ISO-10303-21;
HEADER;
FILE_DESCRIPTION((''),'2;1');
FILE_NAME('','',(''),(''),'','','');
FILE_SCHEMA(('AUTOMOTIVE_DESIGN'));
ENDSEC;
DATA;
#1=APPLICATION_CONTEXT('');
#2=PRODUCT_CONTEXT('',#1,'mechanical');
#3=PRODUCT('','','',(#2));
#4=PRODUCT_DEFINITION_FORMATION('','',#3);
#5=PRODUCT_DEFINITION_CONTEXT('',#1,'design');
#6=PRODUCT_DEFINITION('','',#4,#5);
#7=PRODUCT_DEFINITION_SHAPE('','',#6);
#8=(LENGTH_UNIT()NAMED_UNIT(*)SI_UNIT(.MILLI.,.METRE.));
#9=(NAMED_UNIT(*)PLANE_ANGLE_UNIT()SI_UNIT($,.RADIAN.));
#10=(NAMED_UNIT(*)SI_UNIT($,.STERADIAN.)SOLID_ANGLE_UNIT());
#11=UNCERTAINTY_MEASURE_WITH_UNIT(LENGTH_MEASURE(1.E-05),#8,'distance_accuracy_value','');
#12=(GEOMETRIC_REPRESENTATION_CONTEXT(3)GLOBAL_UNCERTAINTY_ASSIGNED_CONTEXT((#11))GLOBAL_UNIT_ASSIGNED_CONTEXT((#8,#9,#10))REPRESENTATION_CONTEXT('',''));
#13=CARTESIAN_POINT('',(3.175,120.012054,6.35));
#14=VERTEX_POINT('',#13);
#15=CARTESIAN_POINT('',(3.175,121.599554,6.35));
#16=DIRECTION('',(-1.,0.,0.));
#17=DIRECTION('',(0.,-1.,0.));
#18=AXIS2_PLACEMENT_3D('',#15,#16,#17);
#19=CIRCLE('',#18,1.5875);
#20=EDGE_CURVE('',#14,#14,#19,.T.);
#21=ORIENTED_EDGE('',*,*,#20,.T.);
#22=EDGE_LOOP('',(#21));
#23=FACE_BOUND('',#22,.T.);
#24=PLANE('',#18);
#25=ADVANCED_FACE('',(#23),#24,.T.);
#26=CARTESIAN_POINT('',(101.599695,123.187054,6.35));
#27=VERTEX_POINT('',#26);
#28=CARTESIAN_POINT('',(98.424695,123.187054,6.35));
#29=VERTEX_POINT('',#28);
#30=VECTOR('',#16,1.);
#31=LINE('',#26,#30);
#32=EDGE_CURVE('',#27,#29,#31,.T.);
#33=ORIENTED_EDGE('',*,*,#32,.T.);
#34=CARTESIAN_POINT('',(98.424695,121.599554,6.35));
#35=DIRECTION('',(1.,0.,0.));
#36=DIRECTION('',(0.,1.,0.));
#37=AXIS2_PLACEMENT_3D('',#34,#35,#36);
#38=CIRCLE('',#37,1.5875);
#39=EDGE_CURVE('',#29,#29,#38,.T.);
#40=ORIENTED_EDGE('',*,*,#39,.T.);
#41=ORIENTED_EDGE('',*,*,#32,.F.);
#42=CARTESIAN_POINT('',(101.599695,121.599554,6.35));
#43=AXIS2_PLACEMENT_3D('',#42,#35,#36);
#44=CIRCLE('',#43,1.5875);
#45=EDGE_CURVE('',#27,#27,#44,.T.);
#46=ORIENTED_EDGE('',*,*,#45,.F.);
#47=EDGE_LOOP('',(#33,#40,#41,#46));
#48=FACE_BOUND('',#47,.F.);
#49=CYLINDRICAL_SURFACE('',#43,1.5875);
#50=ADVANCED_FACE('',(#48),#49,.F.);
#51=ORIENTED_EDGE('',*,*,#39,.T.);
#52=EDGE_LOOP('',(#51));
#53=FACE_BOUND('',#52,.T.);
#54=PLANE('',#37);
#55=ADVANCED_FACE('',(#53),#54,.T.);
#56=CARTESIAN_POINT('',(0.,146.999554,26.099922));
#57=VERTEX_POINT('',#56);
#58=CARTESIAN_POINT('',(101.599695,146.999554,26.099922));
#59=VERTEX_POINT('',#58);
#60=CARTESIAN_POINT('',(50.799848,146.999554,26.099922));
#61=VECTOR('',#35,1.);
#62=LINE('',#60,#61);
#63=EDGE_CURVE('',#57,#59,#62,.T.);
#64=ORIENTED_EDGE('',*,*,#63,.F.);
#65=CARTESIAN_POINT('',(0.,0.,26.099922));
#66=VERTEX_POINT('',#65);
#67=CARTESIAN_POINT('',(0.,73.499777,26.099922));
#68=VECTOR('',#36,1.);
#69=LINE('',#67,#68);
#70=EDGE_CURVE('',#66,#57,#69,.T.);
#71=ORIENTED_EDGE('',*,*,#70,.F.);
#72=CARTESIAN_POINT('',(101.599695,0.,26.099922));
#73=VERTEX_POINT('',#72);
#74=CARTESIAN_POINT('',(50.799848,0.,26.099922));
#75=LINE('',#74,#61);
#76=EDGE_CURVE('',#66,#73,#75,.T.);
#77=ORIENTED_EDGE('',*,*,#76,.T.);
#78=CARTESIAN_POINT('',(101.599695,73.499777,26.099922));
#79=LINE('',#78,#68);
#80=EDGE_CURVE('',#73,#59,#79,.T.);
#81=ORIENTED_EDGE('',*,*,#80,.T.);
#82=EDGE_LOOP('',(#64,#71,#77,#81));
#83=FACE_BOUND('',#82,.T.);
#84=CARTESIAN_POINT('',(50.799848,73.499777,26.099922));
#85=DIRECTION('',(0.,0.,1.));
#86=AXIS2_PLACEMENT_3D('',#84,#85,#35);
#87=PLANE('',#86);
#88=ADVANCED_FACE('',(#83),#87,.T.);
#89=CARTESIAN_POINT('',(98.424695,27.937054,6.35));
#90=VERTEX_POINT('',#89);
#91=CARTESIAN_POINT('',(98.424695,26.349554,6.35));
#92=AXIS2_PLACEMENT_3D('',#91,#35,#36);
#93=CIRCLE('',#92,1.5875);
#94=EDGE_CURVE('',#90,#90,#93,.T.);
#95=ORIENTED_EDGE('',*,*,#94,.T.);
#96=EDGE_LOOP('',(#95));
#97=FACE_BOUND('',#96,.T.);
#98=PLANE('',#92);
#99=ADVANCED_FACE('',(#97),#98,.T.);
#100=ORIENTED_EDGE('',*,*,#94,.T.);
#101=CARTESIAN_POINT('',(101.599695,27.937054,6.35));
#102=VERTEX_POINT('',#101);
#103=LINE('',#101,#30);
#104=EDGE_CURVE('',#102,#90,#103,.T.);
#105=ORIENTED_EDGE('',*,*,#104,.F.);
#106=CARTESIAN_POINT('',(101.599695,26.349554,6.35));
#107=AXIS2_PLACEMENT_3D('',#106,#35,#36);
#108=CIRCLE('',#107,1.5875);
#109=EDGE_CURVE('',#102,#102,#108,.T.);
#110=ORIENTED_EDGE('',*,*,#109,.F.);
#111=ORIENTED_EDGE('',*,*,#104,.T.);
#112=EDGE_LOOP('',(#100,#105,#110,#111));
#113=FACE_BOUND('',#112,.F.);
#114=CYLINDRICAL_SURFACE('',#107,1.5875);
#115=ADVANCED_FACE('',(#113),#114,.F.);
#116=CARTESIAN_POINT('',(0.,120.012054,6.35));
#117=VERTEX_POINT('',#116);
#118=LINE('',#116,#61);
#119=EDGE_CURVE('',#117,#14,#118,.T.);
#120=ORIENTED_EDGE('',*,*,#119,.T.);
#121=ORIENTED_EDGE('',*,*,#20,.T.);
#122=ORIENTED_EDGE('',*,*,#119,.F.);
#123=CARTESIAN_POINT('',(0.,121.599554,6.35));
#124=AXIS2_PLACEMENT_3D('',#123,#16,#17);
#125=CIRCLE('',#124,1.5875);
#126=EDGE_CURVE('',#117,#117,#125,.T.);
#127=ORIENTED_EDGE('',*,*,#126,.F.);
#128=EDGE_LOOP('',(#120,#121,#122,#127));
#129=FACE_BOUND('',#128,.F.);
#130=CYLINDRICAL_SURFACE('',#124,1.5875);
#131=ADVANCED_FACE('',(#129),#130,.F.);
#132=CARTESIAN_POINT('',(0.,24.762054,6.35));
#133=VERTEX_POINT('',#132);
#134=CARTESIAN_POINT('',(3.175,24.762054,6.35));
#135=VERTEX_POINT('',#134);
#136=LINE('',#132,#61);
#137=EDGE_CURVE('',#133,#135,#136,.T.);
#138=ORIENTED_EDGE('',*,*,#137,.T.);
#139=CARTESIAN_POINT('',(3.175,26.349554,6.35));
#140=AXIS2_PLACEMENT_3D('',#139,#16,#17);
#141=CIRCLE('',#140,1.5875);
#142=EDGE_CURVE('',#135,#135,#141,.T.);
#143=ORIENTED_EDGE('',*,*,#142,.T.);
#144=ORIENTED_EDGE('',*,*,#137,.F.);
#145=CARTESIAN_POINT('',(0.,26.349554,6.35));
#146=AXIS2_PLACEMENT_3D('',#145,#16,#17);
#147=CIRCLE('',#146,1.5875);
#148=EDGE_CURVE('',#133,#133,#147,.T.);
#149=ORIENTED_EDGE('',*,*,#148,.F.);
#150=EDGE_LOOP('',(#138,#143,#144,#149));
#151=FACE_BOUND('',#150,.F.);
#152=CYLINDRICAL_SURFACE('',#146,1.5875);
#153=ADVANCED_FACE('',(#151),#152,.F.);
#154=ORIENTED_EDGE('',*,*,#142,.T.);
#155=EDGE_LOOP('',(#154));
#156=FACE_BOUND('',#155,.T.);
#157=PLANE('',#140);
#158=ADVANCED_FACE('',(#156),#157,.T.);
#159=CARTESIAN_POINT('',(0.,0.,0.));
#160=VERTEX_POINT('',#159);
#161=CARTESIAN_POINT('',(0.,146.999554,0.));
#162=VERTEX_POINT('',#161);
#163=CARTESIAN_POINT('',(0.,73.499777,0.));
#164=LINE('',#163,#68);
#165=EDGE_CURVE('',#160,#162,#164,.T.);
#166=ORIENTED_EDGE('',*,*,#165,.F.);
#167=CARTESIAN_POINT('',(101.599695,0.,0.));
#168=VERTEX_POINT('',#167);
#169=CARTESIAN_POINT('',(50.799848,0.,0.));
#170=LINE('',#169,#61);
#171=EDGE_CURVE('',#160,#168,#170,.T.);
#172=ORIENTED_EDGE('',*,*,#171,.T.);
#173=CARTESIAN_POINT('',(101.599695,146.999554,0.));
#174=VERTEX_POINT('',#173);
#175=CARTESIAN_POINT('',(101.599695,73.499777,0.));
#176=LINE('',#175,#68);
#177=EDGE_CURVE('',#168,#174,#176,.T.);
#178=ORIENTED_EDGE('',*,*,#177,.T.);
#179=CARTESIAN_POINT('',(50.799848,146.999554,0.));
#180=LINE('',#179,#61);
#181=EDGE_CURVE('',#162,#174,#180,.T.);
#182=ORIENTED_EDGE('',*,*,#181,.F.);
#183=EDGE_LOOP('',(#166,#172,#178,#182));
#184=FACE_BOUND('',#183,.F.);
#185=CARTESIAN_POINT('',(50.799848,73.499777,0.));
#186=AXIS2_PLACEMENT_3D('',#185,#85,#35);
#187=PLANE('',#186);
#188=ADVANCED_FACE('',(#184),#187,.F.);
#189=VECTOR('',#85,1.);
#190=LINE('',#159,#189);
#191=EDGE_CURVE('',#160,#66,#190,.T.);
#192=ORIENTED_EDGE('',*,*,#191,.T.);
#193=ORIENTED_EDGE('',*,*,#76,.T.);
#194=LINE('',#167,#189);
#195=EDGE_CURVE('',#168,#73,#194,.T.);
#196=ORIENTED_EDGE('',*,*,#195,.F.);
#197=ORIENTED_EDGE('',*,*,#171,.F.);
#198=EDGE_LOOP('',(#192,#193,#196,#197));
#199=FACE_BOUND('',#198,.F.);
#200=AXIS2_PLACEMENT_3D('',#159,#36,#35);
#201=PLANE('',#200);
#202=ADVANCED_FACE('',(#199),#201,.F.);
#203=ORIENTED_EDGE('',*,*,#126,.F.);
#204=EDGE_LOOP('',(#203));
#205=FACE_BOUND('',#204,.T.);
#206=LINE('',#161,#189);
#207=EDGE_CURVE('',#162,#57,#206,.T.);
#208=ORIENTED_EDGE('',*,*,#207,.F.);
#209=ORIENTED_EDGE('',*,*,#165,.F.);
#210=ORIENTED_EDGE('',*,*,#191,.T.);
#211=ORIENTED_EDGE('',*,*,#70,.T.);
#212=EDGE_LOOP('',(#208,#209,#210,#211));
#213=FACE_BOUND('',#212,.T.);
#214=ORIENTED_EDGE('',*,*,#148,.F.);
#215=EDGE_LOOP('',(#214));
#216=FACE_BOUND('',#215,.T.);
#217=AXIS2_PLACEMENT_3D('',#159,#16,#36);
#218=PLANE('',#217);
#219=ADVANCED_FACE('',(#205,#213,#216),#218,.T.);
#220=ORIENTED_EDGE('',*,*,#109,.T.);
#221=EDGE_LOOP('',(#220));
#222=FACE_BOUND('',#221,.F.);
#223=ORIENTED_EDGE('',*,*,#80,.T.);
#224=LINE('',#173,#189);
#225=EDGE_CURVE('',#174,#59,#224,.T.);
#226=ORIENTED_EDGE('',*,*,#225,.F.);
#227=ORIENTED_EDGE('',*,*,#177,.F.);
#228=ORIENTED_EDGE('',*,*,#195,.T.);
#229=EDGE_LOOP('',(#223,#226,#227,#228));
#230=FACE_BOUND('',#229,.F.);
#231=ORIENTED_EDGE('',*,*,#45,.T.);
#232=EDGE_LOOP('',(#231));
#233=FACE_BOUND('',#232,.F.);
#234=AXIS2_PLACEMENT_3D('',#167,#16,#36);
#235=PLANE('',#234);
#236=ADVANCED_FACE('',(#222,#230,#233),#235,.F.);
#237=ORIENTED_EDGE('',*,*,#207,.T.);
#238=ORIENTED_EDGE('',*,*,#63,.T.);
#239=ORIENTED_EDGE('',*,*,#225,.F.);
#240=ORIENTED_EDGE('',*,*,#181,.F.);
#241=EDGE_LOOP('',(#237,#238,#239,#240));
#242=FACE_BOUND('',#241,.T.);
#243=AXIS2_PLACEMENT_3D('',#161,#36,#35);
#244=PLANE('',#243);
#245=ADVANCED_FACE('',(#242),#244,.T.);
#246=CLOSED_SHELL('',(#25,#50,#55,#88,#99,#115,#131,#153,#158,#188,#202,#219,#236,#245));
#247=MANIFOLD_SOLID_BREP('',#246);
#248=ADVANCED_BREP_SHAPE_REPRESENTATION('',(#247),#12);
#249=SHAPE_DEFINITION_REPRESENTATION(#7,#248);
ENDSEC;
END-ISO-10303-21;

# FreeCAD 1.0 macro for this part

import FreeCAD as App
import Part
import Sketcher

V = App.Vector
Q = App.Units.Quantity

doc = App.newDocument("Part")
body = doc.addObject("PartDesign::Body", "Body")

# Sketch on XY plane
sketch1 = body.newObject("Sketcher::SketchObject", "Sketch")
sketch1.AttachmentSupport = (doc.getObject("XY_Plane"), [""])
sketch1.MapMode = "FlatFace"
sketch1.addGeometry([
    Part.LineSegment(V(0, 147, 0), V(0, 0, 0)),
    Part.LineSegment(V(0, 0, 0), V(102, 0, 0)),
    Part.LineSegment(V(102, 0, 0), V(102, 147, 0)),
    Part.LineSegment(V(102, 147, 0), V(0, 147, 0)),
], False)
sketch1.addConstraint([
    Sketcher.Constraint("Coincident", 0, 2, 1, 1),
    Sketcher.Constraint("Coincident", 1, 2, 2, 1),
    Sketcher.Constraint("Coincident", 2, 2, 3, 1),
    Sketcher.Constraint("Coincident", 3, 2, 0, 1),
    Sketcher.Constraint("Vertical", 0),
    Sketcher.Constraint("Horizontal", 1),
    Sketcher.Constraint("Vertical", 2),
    Sketcher.Constraint("Horizontal", 3),
    Sketcher.Constraint("Coincident", 0, 2, -1, 1),
    Sketcher.Constraint("DistanceX", 1, 1, 1, 2, 101.599695),
    Sketcher.Constraint("DistanceY", 0, 2, 0, 1, 146.999554),
])
pad1 = body.newObject("PartDesign::Pad", "Pad")
pad1.Profile = sketch1
pad1.Length = 26.099922

# Sketch on YZ plane
sketch2 = body.newObject("Sketcher::SketchObject", "Sketch001")
sketch2.AttachmentSupport = (doc.getObject("YZ_Plane"), [""])
sketch2.MapMode = "FlatFace"
sketch2.addGeometry([
    Part.Circle(V(121.6, 6.3, 0), V(0, 0, 1), 1.6),
    Part.Circle(V(26.3, 6.3, 0), V(0, 0, 1), 1.6),
], False)
sketch2.addConstraint([
    Sketcher.Constraint("Equal", 0, 1),
    Sketcher.Constraint("Horizontal", 0, 3, 1, 3),
    Sketcher.Constraint("Diameter", 0, Q("0.125 in")),
    Sketcher.Constraint("DistanceY", -1, 1, 0, 3, Q("0.25 in")),
    Sketcher.Constraint("DistanceX", 1, 3, 0, 3, Q("3.75 in")),
    Sketcher.Constraint("DistanceX", -1, 1, 0, 3, 121.599554),
])
pocket1 = body.newObject("PartDesign::Pocket", "Pocket")
pocket1.Profile = sketch2
pocket1.Length = Q("0.125 in")
pocket1.Reversed = True

# Sketch on YZ plane
sketch3 = body.newObject("Sketcher::SketchObject", "Sketch002")
sketch3.AttachmentSupport = (doc.getObject("YZ_Plane"), [""])
sketch3.MapMode = "FlatFace"
sketch3.AttachmentOffset = App.Placement(V(0, 0, 101.599695), App.Rotation())
sketch3.addGeometry([
    Part.Circle(V(26.3, 6.3, 0), V(0, 0, 1), 1.6),
    Part.Circle(V(121.6, 6.3, 0), V(0, 0, 1), 1.6),
], False)
sketch3.addConstraint([
    Sketcher.Constraint("Equal", 0, 1),
    Sketcher.Constraint("Horizontal", 0, 3, 1, 3),
    Sketcher.Constraint("Diameter", 0, Q("0.125 in")),
    Sketcher.Constraint("DistanceY", -1, 1, 0, 3, Q("0.25 in")),
    Sketcher.Constraint("DistanceX", 0, 3, 1, 3, Q("3.75 in")),
    Sketcher.Constraint("DistanceX", -1, 1, 0, 3, 26.349554),
])
pocket2 = body.newObject("PartDesign::Pocket", "Pocket001")
pocket2.Profile = sketch3
pocket2.Length = Q("0.125 in")

doc.recompute()
